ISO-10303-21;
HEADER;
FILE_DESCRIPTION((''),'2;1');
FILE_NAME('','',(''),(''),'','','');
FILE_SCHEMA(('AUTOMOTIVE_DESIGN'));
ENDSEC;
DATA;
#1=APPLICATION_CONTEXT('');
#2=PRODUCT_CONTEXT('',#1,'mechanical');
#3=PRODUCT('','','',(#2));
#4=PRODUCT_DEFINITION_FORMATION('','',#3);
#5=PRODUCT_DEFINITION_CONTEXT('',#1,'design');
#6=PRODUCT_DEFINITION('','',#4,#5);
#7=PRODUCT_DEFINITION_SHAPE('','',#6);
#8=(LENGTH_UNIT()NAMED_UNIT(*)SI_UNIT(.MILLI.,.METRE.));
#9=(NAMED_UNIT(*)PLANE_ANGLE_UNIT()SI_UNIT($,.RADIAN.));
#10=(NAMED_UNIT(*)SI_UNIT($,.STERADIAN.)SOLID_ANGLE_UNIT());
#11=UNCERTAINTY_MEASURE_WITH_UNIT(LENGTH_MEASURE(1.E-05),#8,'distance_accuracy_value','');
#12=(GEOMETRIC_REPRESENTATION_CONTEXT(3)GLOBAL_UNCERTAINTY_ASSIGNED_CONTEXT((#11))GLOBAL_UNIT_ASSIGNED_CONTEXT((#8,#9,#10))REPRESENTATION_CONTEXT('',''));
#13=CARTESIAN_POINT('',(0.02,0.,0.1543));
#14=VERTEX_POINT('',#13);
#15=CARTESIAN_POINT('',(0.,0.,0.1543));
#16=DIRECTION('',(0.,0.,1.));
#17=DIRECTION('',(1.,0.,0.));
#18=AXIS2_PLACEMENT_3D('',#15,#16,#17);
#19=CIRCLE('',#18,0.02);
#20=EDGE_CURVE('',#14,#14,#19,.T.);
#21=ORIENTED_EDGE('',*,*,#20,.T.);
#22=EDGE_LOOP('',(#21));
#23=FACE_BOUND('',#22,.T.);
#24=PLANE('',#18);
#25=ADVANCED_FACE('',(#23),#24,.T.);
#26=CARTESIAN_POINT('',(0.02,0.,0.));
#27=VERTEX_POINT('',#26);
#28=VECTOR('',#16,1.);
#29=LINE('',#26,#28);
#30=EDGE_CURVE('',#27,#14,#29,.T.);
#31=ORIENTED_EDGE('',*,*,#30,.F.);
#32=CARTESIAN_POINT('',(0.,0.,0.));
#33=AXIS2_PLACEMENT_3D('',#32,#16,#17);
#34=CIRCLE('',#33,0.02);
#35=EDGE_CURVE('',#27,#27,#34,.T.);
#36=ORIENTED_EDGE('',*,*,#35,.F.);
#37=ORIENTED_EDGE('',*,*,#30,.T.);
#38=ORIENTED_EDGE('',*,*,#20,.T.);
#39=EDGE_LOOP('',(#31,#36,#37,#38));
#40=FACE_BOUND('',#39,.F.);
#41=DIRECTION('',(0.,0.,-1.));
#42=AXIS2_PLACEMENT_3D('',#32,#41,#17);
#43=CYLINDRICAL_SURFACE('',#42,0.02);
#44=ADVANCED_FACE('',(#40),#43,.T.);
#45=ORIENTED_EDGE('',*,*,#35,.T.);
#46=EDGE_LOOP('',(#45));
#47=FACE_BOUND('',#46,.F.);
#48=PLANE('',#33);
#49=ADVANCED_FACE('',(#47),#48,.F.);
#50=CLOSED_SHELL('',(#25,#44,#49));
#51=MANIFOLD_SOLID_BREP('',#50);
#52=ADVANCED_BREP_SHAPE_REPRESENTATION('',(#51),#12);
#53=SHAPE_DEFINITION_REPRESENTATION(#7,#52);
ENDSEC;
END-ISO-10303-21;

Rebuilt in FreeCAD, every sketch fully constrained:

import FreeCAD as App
import Part
import Sketcher
from FreeCAD import Vector

doc = App.newDocument("Part")
params = doc.addObject("Spreadsheet::Sheet", "Params")
for row, (alias, value) in enumerate([
    ("sketch1_diameter", "0.04 mm"),
    ("pad1_length", "0.1543 mm"),
], start=1):
    params.set(f"A{row}", alias)
    params.set(f"B{row}", "=" + value)
    params.setAlias(f"B{row}", alias)

body = doc.addObject("PartDesign::Body", "Body")

sketch1 = body.newObject("Sketcher::SketchObject", "Sketch")
sketch1.AttachmentSupport = (doc.getObject("XY_Plane"), [""])
sketch1.MapMode = "FlatFace"
sketch1.addGeometry(Part.Circle(Vector(0, 0, 0), Vector(0, 0, 1), 0.02), False)
sketch1.addConstraint([
    Sketcher.Constraint("Coincident", 0, 3, -1, 1),
    Sketcher.Constraint("Diameter", 0, 0.04),
])
sketch1.setExpression("Constraints[1]", "Params.sketch1_diameter")
pad1 = body.newObject("PartDesign::Pad", "Pad")
pad1.Profile = sketch1
pad1.setExpression("Length", "Params.pad1_length")

doc.recompute()
